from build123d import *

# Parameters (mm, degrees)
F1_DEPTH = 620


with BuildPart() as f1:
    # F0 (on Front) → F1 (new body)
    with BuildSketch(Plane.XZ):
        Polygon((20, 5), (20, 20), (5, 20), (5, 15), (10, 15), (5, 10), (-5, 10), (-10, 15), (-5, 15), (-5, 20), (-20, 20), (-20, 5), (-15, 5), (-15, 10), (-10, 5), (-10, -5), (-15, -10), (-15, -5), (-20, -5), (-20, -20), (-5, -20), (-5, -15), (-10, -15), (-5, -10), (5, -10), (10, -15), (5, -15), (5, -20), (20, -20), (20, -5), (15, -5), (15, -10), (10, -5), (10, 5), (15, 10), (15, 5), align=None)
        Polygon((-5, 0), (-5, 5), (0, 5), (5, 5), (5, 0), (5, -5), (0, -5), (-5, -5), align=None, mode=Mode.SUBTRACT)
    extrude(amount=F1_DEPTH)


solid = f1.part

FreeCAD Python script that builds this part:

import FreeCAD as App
import Part
import Sketcher
from FreeCAD import Vector

doc = App.newDocument("Part")
body = doc.addObject("PartDesign::Body", "Body")

sketch1 = body.newObject("Sketcher::SketchObject", "Sketch")
sketch1.AttachmentSupport = (doc.getObject("XZ_Plane"), [""])
sketch1.MapMode = "FlatFace"
sketch1.addGeometry([
    Part.LineSegment(Vector(20, 5, 0), Vector(20, 20, 0)),
    Part.LineSegment(Vector(20, 20, 0), Vector(5, 20, 0)),
    Part.LineSegment(Vector(5, 20, 0), Vector(5, 15, 0)),
    Part.LineSegment(Vector(5, 15, 0), Vector(10, 15, 0)),
    Part.LineSegment(Vector(10, 15, 0), Vector(5, 10, 0)),
    Part.LineSegment(Vector(5, 10, 0), Vector(-5, 10, 0)),
    Part.LineSegment(Vector(-5, 10, 0), Vector(-10, 15, 0)),
    Part.LineSegment(Vector(-10, 15, 0), Vector(-5, 15, 0)),
    Part.LineSegment(Vector(-5, 15, 0), Vector(-5, 20, 0)),
    Part.LineSegment(Vector(-5, 20, 0), Vector(-20, 20, 0)),
    Part.LineSegment(Vector(-20, 20, 0), Vector(-20, 5, 0)),
    Part.LineSegment(Vector(-20, 5, 0), Vector(-15, 5, 0)),
    Part.LineSegment(Vector(-15, 5, 0), Vector(-15, 10, 0)),
    Part.LineSegment(Vector(-15, 10, 0), Vector(-10, 5, 0)),
    Part.LineSegment(Vector(-10, 5, 0), Vector(-10, -5, 0)),
    Part.LineSegment(Vector(-10, -5, 0), Vector(-15, -10, 0)),
    Part.LineSegment(Vector(-15, -10, 0), Vector(-15, -5, 0)),
    Part.LineSegment(Vector(-15, -5, 0), Vector(-20, -5, 0)),
    Part.LineSegment(Vector(-20, -5, 0), Vector(-20, -20, 0)),
    Part.LineSegment(Vector(-20, -20, 0), Vector(-5, -20, 0)),
    Part.LineSegment(Vector(-5, -20, 0), Vector(-5, -15, 0)),
    Part.LineSegment(Vector(-5, -15, 0), Vector(-10, -15, 0)),
    Part.LineSegment(Vector(-10, -15, 0), Vector(-5, -10, 0)),
    Part.LineSegment(Vector(-5, -10, 0), Vector(5, -10, 0)),
    Part.LineSegment(Vector(5, -10, 0), Vector(10, -15, 0)),
    Part.LineSegment(Vector(10, -15, 0), Vector(5, -15, 0)),
    Part.LineSegment(Vector(5, -15, 0), Vector(5, -20, 0)),
    Part.LineSegment(Vector(5, -20, 0), Vector(20, -20, 0)),
    Part.LineSegment(Vector(20, -20, 0), Vector(20, -5, 0)),
    Part.LineSegment(Vector(20, -5, 0), Vector(15, -5, 0)),
    Part.LineSegment(Vector(15, -5, 0), Vector(15, -10, 0)),
    Part.LineSegment(Vector(15, -10, 0), Vector(10, -5, 0)),
    Part.LineSegment(Vector(10, -5, 0), Vector(10, 5, 0)),
    Part.LineSegment(Vector(10, 5, 0), Vector(15, 10, 0)),
    Part.LineSegment(Vector(15, 10, 0), Vector(15, 5, 0)),
    Part.LineSegment(Vector(15, 5, 0), Vector(20, 5, 0)),
    Part.LineSegment(Vector(-5, -5, 0), Vector(-5, 5, 0)),
    Part.LineSegment(Vector(-5, 5, 0), Vector(5, 5, 0)),
    Part.LineSegment(Vector(5, 5, 0), Vector(5, -5, 0)),
    Part.LineSegment(Vector(5, -5, 0), Vector(-5, -5, 0)),
], False)
sketch1.addConstraint([
    Sketcher.Constraint("Coincident", 0, 2, 1, 1),
    Sketcher.Constraint("Coincident", 1, 2, 2, 1),
    Sketcher.Constraint("Coincident", 2, 2, 3, 1),
    Sketcher.Constraint("Coincident", 3, 2, 4, 1),
    Sketcher.Constraint("Coincident", 4, 2, 5, 1),
    Sketcher.Constraint("Coincident", 5, 2, 6, 1),
    Sketcher.Constraint("Coincident", 6, 2, 7, 1),
    Sketcher.Constraint("Coincident", 7, 2, 8, 1),
    Sketcher.Constraint("Coincident", 8, 2, 9, 1),
    Sketcher.Constraint("Coincident", 9, 2, 10, 1),
    Sketcher.Constraint("Coincident", 10, 2, 11, 1),
    Sketcher.Constraint("Coincident", 11, 2, 12, 1),
    Sketcher.Constraint("Coincident", 12, 2, 13, 1),
    Sketcher.Constraint("Coincident", 13, 2, 14, 1),
    Sketcher.Constraint("Coincident", 14, 2, 15, 1),
    Sketcher.Constraint("Coincident", 15, 2, 16, 1),
    Sketcher.Constraint("Coincident", 16, 2, 17, 1),
    Sketcher.Constraint("Coincident", 17, 2, 18, 1),
    Sketcher.Constraint("Coincident", 18, 2, 19, 1),
    Sketcher.Constraint("Coincident", 19, 2, 20, 1),
    Sketcher.Constraint("Coincident", 20, 2, 21, 1),
    Sketcher.Constraint("Coincident", 21, 2, 22, 1),
    Sketcher.Constraint("Coincident", 22, 2, 23, 1),
    Sketcher.Constraint("Coincident", 23, 2, 24, 1),
    Sketcher.Constraint("Coincident", 24, 2, 25, 1),
    Sketcher.Constraint("Coincident", 25, 2, 26, 1),
    Sketcher.Constraint("Coincident", 26, 2, 27, 1),
    Sketcher.Constraint("Coincident", 27, 2, 28, 1),
    Sketcher.Constraint("Coincident", 28, 2, 29, 1),
    Sketcher.Constraint("Coincident", 29, 2, 30, 1),
    Sketcher.Constraint("Coincident", 30, 2, 31, 1),
    Sketcher.Constraint("Coincident", 31, 2, 32, 1),
    Sketcher.Constraint("Coincident", 32, 2, 33, 1),
    Sketcher.Constraint("Coincident", 33, 2, 34, 1),
    Sketcher.Constraint("Coincident", 34, 2, 35, 1),
    Sketcher.Constraint("Coincident", 35, 2, 0, 1),
    Sketcher.Constraint("Coincident", 36, 2, 37, 1),
    Sketcher.Constraint("Coincident", 37, 2, 38, 1),
    Sketcher.Constraint("Coincident", 38, 2, 39, 1),
    Sketcher.Constraint("Coincident", 39, 2, 36, 1),
    Sketcher.Constraint("Vertical", 0),
    Sketcher.Constraint("Horizontal", 1),
    Sketcher.Constraint("Vertical", 2),
    Sketcher.Constraint("Horizontal", 3),
    Sketcher.Constraint("Horizontal", 5),
    Sketcher.Constraint("Horizontal", 7),
    Sketcher.Constraint("Vertical", 8),
    Sketcher.Constraint("Horizontal", 9),
    Sketcher.Constraint("Vertical", 10),
    Sketcher.Constraint("Horizontal", 11),
    Sketcher.Constraint("Vertical", 12),
    Sketcher.Constraint("Vertical", 14),
    Sketcher.Constraint("Vertical", 16),
    Sketcher.Constraint("Horizontal", 17),
    Sketcher.Constraint("Vertical", 18),
    Sketcher.Constraint("Horizontal", 19),
    Sketcher.Constraint("Vertical", 20),
    Sketcher.Constraint("Horizontal", 21),
    Sketcher.Constraint("Horizontal", 23),
    Sketcher.Constraint("Horizontal", 25),
    Sketcher.Constraint("Vertical", 26),
    Sketcher.Constraint("Horizontal", 27),
    Sketcher.Constraint("Vertical", 28),
    Sketcher.Constraint("Horizontal", 29),
    Sketcher.Constraint("Vertical", 30),
    Sketcher.Constraint("Vertical", 32),
    Sketcher.Constraint("Vertical", 34),
    Sketcher.Constraint("Horizontal", 35),
    Sketcher.Constraint("Vertical", 36),
    Sketcher.Constraint("Horizontal", 37),
    Sketcher.Constraint("Vertical", 38),
    Sketcher.Constraint("Horizontal", 39),
    Sketcher.Constraint("Symmetric", 0, 2, 18, 2, -1, 1),
    Sketcher.Constraint("Symmetric", 2, 2, 20, 2, -1, 1),
    Sketcher.Constraint("Symmetric", 4, 2, 22, 2, -1, 1),
    Sketcher.Constraint("Symmetric", 6, 2, 24, 2, -1, 1),
    Sketcher.Constraint("Symmetric", 8, 2, 26, 2, -1, 1),
    Sketcher.Constraint("Symmetric", 10, 2, 28, 2, -1, 1),
    Sketcher.Constraint("Symmetric", 12, 2, 30, 2, -1, 1),
    Sketcher.Constraint("Symmetric", 13, 2, 31, 2, -1, 1),
    Sketcher.Constraint("Symmetric", 15, 2, 33, 2, -1, 1),
    Sketcher.Constraint("Symmetric", 36, 2, 38, 2, -1, 1),
    Sketcher.Constraint("Symmetric", 3, 2, 6, 2, -2),
    Sketcher.Constraint("Symmetric", 1, 2, 8, 2, -2),
    Sketcher.Constraint("Symmetric", 17, 2, 28, 2, -2),
    Sketcher.Constraint("Symmetric", 15, 2, 30, 2, -2),
    Sketcher.Constraint("Perpendicular", 4, 6),
    Sketcher.Constraint("Parallel", 6, 13),
    Sketcher.Constraint("Perpendicular", 13, 15),
    Sketcher.Constraint("Parallel", 15, 22),
    Sketcher.Constraint("Perpendicular", 22, 24),
    Sketcher.Constraint("Perpendicular", 31, 33),
    Sketcher.Constraint("Horizontal", 5, 2, 12, 2),
    Sketcher.Constraint("Horizontal", 11, 2, 13, 2),
    Sketcher.Constraint("Horizontal", 14, 2, 16, 2),
    Sketcher.Constraint("Horizontal", 32, 2, 34, 2),
    Sketcher.Constraint("Horizontal", 35, 2, 36, 2),
    Sketcher.Constraint("Vertical", 2, 2, 4, 2),
    Sketcher.Constraint("Vertical", 6, 2, 13, 2),
    Sketcher.Constraint("Vertical", 22, 2, 36, 2),
    Sketcher.Constraint("Equal", 7, 11),
    Sketcher.Constraint("Equal", 27, 0),
    Sketcher.Constraint("Equal", 8, 12),
    Sketcher.Constraint("Equal", 39, 14),
    Sketcher.Constraint("DistanceX", 1, 2, 1, 1, 15.0),
    Sketcher.Constraint("DistanceX", 5, 2, 5, 1, 10.0),
])
pad1 = body.newObject("PartDesign::Pad", "Pad")
pad1.Profile = sketch1
pad1.Length = 620

doc.recompute()
